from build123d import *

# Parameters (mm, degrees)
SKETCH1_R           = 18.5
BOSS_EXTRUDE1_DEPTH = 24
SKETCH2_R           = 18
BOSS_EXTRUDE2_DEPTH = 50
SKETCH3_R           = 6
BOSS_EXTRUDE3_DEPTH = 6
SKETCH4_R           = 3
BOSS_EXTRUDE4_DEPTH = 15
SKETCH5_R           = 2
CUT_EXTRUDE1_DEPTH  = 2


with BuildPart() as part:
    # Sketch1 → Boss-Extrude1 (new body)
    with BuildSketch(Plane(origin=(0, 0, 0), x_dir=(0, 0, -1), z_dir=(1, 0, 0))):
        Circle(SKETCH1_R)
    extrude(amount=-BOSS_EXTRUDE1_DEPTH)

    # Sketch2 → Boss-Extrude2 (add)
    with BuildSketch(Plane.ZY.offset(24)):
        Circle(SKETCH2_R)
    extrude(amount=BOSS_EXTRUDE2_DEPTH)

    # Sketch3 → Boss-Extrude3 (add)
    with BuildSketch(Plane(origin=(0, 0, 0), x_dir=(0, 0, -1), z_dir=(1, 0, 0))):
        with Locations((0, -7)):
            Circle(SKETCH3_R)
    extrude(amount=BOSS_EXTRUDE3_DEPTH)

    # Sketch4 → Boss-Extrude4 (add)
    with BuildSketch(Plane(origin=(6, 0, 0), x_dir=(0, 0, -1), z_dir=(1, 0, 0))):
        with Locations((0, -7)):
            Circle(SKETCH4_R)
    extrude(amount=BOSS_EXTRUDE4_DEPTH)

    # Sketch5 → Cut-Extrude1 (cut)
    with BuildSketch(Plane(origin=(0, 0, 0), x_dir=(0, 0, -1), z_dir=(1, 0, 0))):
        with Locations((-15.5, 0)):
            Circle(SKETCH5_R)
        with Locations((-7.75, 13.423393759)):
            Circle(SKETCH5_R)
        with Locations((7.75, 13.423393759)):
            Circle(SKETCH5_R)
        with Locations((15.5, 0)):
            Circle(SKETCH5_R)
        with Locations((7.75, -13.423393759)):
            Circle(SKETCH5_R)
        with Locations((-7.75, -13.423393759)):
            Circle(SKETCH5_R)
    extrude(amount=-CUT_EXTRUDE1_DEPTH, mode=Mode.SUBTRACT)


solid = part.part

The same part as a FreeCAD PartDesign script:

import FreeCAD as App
import Part
import Sketcher

doc = App.newDocument("Part")
body = doc.addObject("PartDesign::Body", "Body")

sketch1 = body.newObject("Sketcher::SketchObject", "Sketch")
sketch1.AttachmentSupport = (doc.getObject("YZ_Plane"), [""])
sketch1.MapMode = "FlatFace"
sketch1.addGeometry(Part.Circle(App.Vector(0, 0, 0), App.Vector(0, 0, 1), 18), False)
sketch1.addConstraint(Sketcher.Constraint("Coincident", 0, 3, -1, 1))
sketch1.addConstraint(Sketcher.Constraint("Diameter", 0, 37.0))
pad1 = body.newObject("PartDesign::Pad", "Pad")
pad1.Profile = sketch1
pad1.Length = 24
pad1.Reversed = True

sketch2 = body.newObject("Sketcher::SketchObject", "Sketch001")
sketch2.AttachmentSupport = (doc.getObject("YZ_Plane"), [""])
sketch2.MapMode = "FlatFace"
sketch2.AttachmentOffset = App.Placement(App.Vector(0, 0, -24), App.Rotation())
sketch2.addGeometry(Part.Circle(App.Vector(0, 0, 0), App.Vector(0, 0, 1), 18), False)
sketch2.addConstraint(Sketcher.Constraint("Coincident", 0, 3, -1, 1))
sketch2.addConstraint(Sketcher.Constraint("Diameter", 0, 36.0))
pad2 = body.newObject("PartDesign::Pad", "Pad001")
pad2.Profile = sketch2
pad2.Length = 50
pad2.Reversed = True

sketch3 = body.newObject("Sketcher::SketchObject", "Sketch002")
sketch3.AttachmentSupport = (doc.getObject("YZ_Plane"), [""])
sketch3.MapMode = "FlatFace"
sketch3.addGeometry(Part.Circle(App.Vector(-7, 0, 0), App.Vector(0, 0, 1), 6), False)
sketch3.addConstraint(Sketcher.Constraint("PointOnObject", 0, 3, -1))
sketch3.addConstraint(Sketcher.Constraint("Diameter", 0, 12.0))
sketch3.addConstraint(Sketcher.Constraint("DistanceX", 0, 3, -1, 1, 7.0))
pad3 = body.newObject("PartDesign::Pad", "Pad002")
pad3.Profile = sketch3
pad3.Length = 6

sketch4 = body.newObject("Sketcher::SketchObject", "Sketch003")
sketch4.AttachmentSupport = (doc.getObject("YZ_Plane"), [""])
sketch4.MapMode = "FlatFace"
sketch4.AttachmentOffset = App.Placement(App.Vector(0, 0, 6), App.Rotation())
sketch4.addGeometry(Part.Circle(App.Vector(-7, 0, 0), App.Vector(0, 0, 1), 3), False)
sketch4.addConstraint(Sketcher.Constraint("PointOnObject", 0, 3, -1))
sketch4.addConstraint(Sketcher.Constraint("Diameter", 0, 6.0))
sketch4.addConstraint(Sketcher.Constraint("DistanceX", 0, 3, -1, 1, 7.0))
pad4 = body.newObject("PartDesign::Pad", "Pad003")
pad4.Profile = sketch4
pad4.Length = 15

sketch5 = body.newObject("Sketcher::SketchObject", "Sketch004")
sketch5.AttachmentSupport = (doc.getObject("YZ_Plane"), [""])
sketch5.MapMode = "FlatFace"
sketch5.addGeometry(Part.Circle(App.Vector(0, 15.5, 0), App.Vector(0, 0, 1), 2), False)
sketch5.addGeometry(Part.Circle(App.Vector(13.4, 7.8, 0), App.Vector(0, 0, 1), 2), False)
sketch5.addGeometry(Part.Circle(App.Vector(13.4, -7.8, 0), App.Vector(0, 0, 1), 2), False)
sketch5.addGeometry(Part.Circle(App.Vector(0, -15.5, 0), App.Vector(0, 0, 1), 2), False)
sketch5.addGeometry(Part.Circle(App.Vector(-13.4, -7.8, 0), App.Vector(0, 0, 1), 2), False)
sketch5.addGeometry(Part.Circle(App.Vector(-13.4, 7.8, 0), App.Vector(0, 0, 1), 2), False)
sketch5.addConstraint(Sketcher.Constraint("Equal", 0, 1))
sketch5.addConstraint(Sketcher.Constraint("Equal", 1, 2))
sketch5.addConstraint(Sketcher.Constraint("Equal", 2, 3))
sketch5.addConstraint(Sketcher.Constraint("Equal", 3, 4))
sketch5.addConstraint(Sketcher.Constraint("Equal", 4, 5))
sketch5.addConstraint(Sketcher.Constraint("Symmetric", 0, 3, 3, 3, -1, 1))
sketch5.addConstraint(Sketcher.Constraint("Symmetric", 1, 3, 4, 3, -1, 1))
sketch5.addConstraint(Sketcher.Constraint("Symmetric", 2, 3, 5, 3, -1, 1))
sketch5.addConstraint(Sketcher.Constraint("Symmetric", 2, 3, 4, 3, -2))
sketch5.addConstraint(Sketcher.Constraint("PointOnObject", 0, 3, -2))
sketch5.addConstraint(Sketcher.Constraint("Diameter", 0, 4.0))
sketch5.addConstraint(Sketcher.Constraint("DistanceY", 3, 3, 0, 3, 31.0))
sketch5.addConstraint(Sketcher.Constraint("DistanceY", 2, 3, 1, 3, 15.5))
sketch5.addConstraint(Sketcher.Constraint("DistanceX", -1, 1, 1, 3, 13.423394))
pocket1 = body.newObject("PartDesign::Pocket", "Pocket")
pocket1.Profile = sketch5
pocket1.Length = 2

doc.recompute()
